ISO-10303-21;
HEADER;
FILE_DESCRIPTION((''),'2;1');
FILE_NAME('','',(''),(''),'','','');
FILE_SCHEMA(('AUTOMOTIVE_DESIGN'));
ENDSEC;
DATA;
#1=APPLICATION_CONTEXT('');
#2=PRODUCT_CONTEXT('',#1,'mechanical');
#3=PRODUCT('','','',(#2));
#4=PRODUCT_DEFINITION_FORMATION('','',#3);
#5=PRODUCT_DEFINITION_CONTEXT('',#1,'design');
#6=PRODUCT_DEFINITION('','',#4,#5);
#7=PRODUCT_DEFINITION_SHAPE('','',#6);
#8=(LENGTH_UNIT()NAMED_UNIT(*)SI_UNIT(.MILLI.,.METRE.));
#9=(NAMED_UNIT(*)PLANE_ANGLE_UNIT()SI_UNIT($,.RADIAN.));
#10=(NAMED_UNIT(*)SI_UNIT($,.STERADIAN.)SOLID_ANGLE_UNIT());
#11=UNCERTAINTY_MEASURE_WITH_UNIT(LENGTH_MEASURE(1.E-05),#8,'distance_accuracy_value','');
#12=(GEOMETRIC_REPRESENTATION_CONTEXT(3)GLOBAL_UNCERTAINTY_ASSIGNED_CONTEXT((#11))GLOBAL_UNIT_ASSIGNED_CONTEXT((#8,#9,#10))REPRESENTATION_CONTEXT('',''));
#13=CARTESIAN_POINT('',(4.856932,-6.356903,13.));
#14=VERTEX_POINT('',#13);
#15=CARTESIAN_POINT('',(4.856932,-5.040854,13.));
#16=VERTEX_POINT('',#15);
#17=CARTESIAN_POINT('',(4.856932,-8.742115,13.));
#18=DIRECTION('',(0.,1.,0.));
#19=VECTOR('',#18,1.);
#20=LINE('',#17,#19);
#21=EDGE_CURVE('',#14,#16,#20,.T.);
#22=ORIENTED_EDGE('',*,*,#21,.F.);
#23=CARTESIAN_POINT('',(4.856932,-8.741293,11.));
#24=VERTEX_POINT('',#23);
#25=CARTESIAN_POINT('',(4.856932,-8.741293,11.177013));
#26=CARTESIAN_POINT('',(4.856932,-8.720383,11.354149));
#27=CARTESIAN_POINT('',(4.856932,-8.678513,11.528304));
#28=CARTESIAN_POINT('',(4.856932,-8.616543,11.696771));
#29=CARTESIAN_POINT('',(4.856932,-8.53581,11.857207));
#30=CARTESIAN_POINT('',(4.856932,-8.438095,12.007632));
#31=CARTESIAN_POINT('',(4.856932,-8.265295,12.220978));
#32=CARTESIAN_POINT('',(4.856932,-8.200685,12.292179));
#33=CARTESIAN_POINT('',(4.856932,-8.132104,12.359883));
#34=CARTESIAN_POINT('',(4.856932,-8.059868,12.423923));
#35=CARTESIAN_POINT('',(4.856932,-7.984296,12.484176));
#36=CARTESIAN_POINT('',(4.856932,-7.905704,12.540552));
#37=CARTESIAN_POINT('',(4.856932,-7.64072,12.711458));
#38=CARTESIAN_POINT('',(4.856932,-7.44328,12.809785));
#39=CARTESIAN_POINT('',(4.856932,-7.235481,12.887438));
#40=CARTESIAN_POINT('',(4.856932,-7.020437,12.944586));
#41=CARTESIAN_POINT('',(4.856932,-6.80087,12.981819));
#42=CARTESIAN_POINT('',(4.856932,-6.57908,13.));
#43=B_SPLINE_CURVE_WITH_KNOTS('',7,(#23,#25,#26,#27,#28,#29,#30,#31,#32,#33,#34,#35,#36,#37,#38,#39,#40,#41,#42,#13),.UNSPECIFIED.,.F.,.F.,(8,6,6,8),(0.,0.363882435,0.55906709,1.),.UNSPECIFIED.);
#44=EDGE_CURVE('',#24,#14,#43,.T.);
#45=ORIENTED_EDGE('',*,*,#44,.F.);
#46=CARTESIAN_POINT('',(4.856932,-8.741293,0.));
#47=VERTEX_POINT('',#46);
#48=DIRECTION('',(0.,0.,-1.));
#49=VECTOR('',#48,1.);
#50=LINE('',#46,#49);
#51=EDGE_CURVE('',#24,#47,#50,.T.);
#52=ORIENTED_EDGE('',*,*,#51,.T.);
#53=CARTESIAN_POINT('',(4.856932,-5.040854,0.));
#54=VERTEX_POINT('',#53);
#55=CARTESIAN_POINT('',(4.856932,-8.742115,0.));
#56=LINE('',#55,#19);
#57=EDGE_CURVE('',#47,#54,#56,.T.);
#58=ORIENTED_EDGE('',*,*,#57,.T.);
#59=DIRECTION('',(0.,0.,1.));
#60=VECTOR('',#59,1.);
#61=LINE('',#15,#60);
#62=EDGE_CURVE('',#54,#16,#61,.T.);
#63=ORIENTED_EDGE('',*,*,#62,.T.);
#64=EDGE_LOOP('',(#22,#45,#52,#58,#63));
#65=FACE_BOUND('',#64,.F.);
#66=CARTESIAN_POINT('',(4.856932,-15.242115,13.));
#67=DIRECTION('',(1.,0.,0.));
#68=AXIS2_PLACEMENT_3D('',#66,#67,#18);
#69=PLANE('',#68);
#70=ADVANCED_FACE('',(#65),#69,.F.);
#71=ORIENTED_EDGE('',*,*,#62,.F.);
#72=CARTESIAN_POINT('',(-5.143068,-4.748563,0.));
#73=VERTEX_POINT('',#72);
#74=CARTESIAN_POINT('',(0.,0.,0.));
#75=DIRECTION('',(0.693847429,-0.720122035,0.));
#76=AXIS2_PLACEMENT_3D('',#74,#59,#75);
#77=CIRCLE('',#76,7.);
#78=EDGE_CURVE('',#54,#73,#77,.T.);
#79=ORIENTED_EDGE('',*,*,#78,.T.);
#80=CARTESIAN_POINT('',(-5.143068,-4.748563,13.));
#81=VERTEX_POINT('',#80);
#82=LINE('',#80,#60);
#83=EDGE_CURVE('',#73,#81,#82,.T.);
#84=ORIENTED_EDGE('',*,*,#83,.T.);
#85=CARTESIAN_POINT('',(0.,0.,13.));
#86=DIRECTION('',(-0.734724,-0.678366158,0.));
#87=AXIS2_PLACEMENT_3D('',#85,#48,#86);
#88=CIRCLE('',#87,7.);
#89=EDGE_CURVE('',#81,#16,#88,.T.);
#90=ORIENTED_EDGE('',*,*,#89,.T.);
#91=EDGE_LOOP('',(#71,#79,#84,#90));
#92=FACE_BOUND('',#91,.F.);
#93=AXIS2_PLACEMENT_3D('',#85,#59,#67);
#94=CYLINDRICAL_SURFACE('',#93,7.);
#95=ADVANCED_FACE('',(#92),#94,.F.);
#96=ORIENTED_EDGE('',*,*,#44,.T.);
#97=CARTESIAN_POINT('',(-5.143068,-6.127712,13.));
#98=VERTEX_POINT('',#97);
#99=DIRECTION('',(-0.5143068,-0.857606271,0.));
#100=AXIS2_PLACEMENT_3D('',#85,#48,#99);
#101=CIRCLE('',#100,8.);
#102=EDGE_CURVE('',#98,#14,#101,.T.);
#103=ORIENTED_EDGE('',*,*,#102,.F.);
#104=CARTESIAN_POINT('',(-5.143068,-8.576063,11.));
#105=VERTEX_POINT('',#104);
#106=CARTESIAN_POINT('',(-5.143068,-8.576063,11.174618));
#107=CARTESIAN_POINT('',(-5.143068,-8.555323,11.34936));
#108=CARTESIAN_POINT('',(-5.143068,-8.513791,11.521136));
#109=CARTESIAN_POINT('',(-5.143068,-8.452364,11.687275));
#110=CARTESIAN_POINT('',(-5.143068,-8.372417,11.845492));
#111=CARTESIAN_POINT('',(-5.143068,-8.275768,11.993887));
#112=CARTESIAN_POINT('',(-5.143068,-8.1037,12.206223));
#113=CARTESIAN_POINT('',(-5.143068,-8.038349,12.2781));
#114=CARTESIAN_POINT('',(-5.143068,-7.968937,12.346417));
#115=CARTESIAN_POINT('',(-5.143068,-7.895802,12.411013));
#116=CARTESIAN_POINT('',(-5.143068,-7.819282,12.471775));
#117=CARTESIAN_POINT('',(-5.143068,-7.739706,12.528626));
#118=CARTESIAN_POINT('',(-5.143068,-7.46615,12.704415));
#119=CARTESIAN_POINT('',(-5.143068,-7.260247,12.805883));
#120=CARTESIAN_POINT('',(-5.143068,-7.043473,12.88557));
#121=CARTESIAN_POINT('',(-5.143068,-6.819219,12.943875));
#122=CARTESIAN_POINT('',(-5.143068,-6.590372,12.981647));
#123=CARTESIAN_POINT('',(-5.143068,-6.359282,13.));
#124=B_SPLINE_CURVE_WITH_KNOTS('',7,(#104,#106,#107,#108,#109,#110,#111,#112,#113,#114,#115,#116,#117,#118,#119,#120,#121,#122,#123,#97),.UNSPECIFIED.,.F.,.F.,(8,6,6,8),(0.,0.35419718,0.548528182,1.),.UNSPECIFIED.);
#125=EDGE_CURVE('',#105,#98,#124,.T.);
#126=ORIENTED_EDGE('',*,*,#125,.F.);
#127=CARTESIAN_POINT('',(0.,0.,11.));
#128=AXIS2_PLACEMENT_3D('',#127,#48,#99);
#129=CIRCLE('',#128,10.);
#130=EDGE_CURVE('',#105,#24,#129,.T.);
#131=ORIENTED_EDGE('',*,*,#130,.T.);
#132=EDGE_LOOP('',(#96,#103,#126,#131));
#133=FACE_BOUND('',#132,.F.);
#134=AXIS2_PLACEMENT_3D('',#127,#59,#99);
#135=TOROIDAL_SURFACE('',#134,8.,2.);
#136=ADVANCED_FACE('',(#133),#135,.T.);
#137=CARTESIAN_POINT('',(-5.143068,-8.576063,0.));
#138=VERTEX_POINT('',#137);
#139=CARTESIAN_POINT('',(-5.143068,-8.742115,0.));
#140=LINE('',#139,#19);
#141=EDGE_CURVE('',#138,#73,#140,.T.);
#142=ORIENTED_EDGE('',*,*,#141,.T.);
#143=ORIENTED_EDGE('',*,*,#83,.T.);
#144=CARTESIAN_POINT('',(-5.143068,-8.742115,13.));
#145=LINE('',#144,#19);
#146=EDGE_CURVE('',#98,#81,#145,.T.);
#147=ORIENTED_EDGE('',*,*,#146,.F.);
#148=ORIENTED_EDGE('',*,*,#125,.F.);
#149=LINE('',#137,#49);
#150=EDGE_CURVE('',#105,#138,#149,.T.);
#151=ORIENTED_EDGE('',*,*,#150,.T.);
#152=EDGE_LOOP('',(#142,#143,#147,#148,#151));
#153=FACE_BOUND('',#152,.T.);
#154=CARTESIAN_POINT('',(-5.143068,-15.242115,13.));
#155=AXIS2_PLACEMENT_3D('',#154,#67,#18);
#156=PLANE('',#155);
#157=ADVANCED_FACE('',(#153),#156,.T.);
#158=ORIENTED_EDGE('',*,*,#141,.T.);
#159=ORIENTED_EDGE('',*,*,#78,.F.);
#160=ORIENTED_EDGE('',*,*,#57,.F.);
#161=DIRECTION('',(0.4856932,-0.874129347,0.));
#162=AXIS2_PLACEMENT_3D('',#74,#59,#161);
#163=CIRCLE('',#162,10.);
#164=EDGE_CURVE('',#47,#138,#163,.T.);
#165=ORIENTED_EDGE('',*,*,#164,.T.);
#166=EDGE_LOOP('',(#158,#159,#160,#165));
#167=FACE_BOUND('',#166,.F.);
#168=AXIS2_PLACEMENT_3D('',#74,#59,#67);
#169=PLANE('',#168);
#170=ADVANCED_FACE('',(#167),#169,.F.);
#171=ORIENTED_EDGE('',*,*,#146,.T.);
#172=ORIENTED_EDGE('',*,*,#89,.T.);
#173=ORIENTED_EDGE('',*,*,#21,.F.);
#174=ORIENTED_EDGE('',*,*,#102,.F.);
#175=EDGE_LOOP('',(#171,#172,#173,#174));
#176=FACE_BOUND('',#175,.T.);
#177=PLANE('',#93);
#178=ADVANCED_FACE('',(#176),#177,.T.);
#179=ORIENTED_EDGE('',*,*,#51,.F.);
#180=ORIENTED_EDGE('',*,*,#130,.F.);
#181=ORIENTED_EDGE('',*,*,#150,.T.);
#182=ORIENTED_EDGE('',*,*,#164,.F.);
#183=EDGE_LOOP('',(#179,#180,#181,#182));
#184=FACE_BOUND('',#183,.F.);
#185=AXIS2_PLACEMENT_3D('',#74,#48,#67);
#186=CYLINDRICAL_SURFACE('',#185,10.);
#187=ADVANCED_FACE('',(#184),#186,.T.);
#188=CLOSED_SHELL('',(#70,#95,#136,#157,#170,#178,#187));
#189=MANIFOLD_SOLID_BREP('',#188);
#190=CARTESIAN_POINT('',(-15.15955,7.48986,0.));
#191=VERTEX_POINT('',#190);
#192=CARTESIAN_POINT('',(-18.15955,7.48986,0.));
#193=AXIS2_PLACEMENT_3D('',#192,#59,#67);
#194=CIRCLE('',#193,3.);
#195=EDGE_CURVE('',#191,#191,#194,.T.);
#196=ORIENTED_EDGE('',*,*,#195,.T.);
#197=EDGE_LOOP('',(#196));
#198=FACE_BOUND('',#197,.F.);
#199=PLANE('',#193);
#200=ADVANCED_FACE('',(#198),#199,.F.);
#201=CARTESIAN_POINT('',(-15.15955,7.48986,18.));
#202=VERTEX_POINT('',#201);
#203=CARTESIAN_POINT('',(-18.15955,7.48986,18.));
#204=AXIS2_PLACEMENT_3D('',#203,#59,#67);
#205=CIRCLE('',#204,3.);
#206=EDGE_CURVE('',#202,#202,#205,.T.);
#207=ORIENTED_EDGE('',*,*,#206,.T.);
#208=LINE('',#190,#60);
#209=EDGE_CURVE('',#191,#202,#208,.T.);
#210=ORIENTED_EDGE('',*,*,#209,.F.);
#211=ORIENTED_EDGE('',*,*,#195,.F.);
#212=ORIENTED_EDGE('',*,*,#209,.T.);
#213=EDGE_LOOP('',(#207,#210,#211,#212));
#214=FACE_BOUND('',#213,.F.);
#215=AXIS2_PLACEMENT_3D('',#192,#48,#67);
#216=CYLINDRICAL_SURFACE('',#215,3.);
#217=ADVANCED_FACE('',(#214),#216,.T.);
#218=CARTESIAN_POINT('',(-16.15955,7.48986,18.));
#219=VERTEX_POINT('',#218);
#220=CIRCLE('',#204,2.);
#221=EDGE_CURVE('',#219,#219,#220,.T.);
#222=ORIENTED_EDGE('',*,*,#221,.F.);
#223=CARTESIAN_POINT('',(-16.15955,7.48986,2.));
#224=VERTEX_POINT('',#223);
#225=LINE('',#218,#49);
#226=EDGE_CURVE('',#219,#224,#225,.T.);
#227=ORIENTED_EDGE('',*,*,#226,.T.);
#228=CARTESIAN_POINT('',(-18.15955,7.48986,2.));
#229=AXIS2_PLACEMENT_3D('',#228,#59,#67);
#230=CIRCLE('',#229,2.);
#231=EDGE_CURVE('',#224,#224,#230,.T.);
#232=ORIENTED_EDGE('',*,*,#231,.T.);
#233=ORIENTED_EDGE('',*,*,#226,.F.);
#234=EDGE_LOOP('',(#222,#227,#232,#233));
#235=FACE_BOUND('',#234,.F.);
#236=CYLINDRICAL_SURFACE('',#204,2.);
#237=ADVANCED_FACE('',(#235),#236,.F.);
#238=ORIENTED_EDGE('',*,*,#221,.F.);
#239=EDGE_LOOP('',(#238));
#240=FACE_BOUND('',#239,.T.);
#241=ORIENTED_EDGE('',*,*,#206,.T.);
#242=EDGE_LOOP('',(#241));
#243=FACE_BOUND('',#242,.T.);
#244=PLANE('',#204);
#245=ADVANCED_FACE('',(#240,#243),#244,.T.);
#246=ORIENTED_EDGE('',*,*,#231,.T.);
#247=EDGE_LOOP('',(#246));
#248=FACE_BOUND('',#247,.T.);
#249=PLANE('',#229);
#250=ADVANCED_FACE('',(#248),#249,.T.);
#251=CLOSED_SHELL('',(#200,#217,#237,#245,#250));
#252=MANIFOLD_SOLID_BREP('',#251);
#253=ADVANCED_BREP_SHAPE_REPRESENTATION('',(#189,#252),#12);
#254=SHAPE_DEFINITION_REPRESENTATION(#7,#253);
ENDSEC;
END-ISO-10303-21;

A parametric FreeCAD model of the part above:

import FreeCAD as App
import Part
import Sketcher
Q = App.Units.Quantity


def edges_at(feature, points):
    """Names of the edges that pass closest to the given points."""
    edges = feature.Shape.Edges
    near = lambda p: min(range(len(edges)), key=lambda i: edges[i].distToShape(Part.Vertex(*p))[0])
    return sorted({f"Edge{near(p) + 1}" for p in points})

doc = App.newDocument("Part")
body = doc.addObject("PartDesign::Body", "Body")

# Sketch on XY plane
sketch1 = doc.addObject("Sketcher::SketchObject", "Sketch")
body.addObject(sketch1)
sketch1.AttachmentSupport = (doc.XY_Plane, [""])
sketch1.MapMode = "FlatFace"
sketch1.addGeometry(Part.Circle(App.Vector(0, 0, 0), App.Vector(0, 0, 1), 10), False)
sketch1.addConstraint(Sketcher.Constraint("Coincident", 0, 3, -1, 1))
sketch1.addConstraint(Sketcher.Constraint("Diameter", 0, Q("20 mm")))
pad1 = doc.addObject("PartDesign::Pad", "Pad")
body.addObject(pad1)
pad1.Profile = sketch1
pad1.Length = 13

# Sketch on XY plane
sketch2 = doc.addObject("Sketcher::SketchObject", "Sketch001")
body.addObject(sketch2)
sketch2.AttachmentSupport = (doc.XY_Plane, [""])
sketch2.MapMode = "FlatFace"
sketch2.AttachmentOffset = App.Placement(App.Vector(0, 0, 13), App.Rotation())
sketch2.addGeometry(Part.Circle(App.Vector(0, 0, 0), App.Vector(0, 0, 1), 7), False)
sketch2.addConstraint(Sketcher.Constraint("Coincident", 0, 3, -1, 1))
sketch2.addConstraint(Sketcher.Constraint("Diameter", 0, Q("14 mm")))
pocket1 = doc.addObject("PartDesign::Pocket", "Pocket")
body.addObject(pocket1)
pocket1.Profile = sketch2
pocket1.Length = 13

# Sketch on XY plane
sketch3 = doc.addObject("Sketcher::SketchObject", "Sketch002")
body.addObject(sketch3)
sketch3.AttachmentSupport = (doc.XY_Plane, [""])
sketch3.MapMode = "FlatFace"
sketch3.AttachmentOffset = App.Placement(App.Vector(0, 0, 13), App.Rotation())
sketch3.addGeometry(Part.LineSegment(App.Vector(-5, -2, 0), App.Vector(-5, -15, 0)), False)
sketch3.addGeometry(Part.LineSegment(App.Vector(-5, -15, 0), App.Vector(5, -15, 0)), False)
sketch3.addGeometry(Part.LineSegment(App.Vector(5, -15, 0), App.Vector(5, -2, 0)), False)
sketch3.addGeometry(Part.LineSegment(App.Vector(5, -2, 0), App.Vector(-5, -2, 0)), False)
sketch3.addConstraint(Sketcher.Constraint("Coincident", 0, 2, 1, 1))
sketch3.addConstraint(Sketcher.Constraint("Coincident", 1, 2, 2, 1))
sketch3.addConstraint(Sketcher.Constraint("Coincident", 2, 2, 3, 1))
sketch3.addConstraint(Sketcher.Constraint("Coincident", 3, 2, 0, 1))
sketch3.addConstraint(Sketcher.Constraint("Vertical", 0))
sketch3.addConstraint(Sketcher.Constraint("Horizontal", 1))
sketch3.addConstraint(Sketcher.Constraint("Vertical", 2))
sketch3.addConstraint(Sketcher.Constraint("Horizontal", 3))
sketch3.addConstraint(Sketcher.Constraint("DistanceX", 1, 1, 1, 2, Q("10 mm")))
sketch3.addConstraint(Sketcher.Constraint("DistanceY", 0, 2, 0, 1, Q("13 mm")))
sketch3.addConstraint(Sketcher.Constraint("DistanceX", 0, 2, -1, 1, Q("5.143068 mm")))
sketch3.addConstraint(Sketcher.Constraint("DistanceY", 0, 2, -1, 1, Q("15.242115 mm")))
pocket2 = doc.addObject("PartDesign::Pocket", "Pocket001")
body.addObject(pocket2)
pocket2.Profile = sketch3
pocket2.Length = 13
doc.recompute()

fillet = doc.addObject("PartDesign::Fillet", "Fillet")
body.addObject(fillet)
fillet.Base = (pocket2, edges_at(pocket2, [(0.165, 9.999, 13)]))
fillet.Radius = 2
body2 = doc.addObject("PartDesign::Body", "Body001")

# Sketch on XY plane
sketch4 = doc.addObject("Sketcher::SketchObject", "Sketch003")
body2.addObject(sketch4)
sketch4.AttachmentSupport = (doc.getObject("XY_Plane001"), [""])
sketch4.MapMode = "FlatFace"
sketch4.addGeometry(Part.Circle(App.Vector(-18.2, 7.5, 0), App.Vector(0, 0, 1), 3), False)
sketch4.addConstraint(Sketcher.Constraint("Diameter", 0, Q("6 mm")))
sketch4.addConstraint(Sketcher.Constraint("DistanceX", 0, 3, -1, 1, Q("18.15955 mm")))
sketch4.addConstraint(Sketcher.Constraint("DistanceY", -1, 1, 0, 3, Q("7.48986 mm")))
pad2 = doc.addObject("PartDesign::Pad", "Pad001")
body2.addObject(pad2)
pad2.Profile = sketch4
pad2.Length = 18

# Sketch on XY plane
sketch5 = doc.addObject("Sketcher::SketchObject", "Sketch004")
body2.addObject(sketch5)
sketch5.AttachmentSupport = (doc.getObject("XY_Plane001"), [""])
sketch5.MapMode = "FlatFace"
sketch5.AttachmentOffset = App.Placement(App.Vector(0, 0, 18), App.Rotation())
sketch5.addGeometry(Part.Circle(App.Vector(-18.2, 7.5, 0), App.Vector(0, 0, 1), 2), False)
sketch5.addConstraint(Sketcher.Constraint("Diameter", 0, Q("4 mm")))
sketch5.addConstraint(Sketcher.Constraint("DistanceX", 0, 3, -1, 1, Q("18.15955 mm")))
sketch5.addConstraint(Sketcher.Constraint("DistanceY", -1, 1, 0, 3, Q("7.48986 mm")))
pocket3 = doc.addObject("PartDesign::Pocket", "Pocket002")
body2.addObject(pocket3)
pocket3.Profile = sketch5
pocket3.Length = 16

doc.recompute()
